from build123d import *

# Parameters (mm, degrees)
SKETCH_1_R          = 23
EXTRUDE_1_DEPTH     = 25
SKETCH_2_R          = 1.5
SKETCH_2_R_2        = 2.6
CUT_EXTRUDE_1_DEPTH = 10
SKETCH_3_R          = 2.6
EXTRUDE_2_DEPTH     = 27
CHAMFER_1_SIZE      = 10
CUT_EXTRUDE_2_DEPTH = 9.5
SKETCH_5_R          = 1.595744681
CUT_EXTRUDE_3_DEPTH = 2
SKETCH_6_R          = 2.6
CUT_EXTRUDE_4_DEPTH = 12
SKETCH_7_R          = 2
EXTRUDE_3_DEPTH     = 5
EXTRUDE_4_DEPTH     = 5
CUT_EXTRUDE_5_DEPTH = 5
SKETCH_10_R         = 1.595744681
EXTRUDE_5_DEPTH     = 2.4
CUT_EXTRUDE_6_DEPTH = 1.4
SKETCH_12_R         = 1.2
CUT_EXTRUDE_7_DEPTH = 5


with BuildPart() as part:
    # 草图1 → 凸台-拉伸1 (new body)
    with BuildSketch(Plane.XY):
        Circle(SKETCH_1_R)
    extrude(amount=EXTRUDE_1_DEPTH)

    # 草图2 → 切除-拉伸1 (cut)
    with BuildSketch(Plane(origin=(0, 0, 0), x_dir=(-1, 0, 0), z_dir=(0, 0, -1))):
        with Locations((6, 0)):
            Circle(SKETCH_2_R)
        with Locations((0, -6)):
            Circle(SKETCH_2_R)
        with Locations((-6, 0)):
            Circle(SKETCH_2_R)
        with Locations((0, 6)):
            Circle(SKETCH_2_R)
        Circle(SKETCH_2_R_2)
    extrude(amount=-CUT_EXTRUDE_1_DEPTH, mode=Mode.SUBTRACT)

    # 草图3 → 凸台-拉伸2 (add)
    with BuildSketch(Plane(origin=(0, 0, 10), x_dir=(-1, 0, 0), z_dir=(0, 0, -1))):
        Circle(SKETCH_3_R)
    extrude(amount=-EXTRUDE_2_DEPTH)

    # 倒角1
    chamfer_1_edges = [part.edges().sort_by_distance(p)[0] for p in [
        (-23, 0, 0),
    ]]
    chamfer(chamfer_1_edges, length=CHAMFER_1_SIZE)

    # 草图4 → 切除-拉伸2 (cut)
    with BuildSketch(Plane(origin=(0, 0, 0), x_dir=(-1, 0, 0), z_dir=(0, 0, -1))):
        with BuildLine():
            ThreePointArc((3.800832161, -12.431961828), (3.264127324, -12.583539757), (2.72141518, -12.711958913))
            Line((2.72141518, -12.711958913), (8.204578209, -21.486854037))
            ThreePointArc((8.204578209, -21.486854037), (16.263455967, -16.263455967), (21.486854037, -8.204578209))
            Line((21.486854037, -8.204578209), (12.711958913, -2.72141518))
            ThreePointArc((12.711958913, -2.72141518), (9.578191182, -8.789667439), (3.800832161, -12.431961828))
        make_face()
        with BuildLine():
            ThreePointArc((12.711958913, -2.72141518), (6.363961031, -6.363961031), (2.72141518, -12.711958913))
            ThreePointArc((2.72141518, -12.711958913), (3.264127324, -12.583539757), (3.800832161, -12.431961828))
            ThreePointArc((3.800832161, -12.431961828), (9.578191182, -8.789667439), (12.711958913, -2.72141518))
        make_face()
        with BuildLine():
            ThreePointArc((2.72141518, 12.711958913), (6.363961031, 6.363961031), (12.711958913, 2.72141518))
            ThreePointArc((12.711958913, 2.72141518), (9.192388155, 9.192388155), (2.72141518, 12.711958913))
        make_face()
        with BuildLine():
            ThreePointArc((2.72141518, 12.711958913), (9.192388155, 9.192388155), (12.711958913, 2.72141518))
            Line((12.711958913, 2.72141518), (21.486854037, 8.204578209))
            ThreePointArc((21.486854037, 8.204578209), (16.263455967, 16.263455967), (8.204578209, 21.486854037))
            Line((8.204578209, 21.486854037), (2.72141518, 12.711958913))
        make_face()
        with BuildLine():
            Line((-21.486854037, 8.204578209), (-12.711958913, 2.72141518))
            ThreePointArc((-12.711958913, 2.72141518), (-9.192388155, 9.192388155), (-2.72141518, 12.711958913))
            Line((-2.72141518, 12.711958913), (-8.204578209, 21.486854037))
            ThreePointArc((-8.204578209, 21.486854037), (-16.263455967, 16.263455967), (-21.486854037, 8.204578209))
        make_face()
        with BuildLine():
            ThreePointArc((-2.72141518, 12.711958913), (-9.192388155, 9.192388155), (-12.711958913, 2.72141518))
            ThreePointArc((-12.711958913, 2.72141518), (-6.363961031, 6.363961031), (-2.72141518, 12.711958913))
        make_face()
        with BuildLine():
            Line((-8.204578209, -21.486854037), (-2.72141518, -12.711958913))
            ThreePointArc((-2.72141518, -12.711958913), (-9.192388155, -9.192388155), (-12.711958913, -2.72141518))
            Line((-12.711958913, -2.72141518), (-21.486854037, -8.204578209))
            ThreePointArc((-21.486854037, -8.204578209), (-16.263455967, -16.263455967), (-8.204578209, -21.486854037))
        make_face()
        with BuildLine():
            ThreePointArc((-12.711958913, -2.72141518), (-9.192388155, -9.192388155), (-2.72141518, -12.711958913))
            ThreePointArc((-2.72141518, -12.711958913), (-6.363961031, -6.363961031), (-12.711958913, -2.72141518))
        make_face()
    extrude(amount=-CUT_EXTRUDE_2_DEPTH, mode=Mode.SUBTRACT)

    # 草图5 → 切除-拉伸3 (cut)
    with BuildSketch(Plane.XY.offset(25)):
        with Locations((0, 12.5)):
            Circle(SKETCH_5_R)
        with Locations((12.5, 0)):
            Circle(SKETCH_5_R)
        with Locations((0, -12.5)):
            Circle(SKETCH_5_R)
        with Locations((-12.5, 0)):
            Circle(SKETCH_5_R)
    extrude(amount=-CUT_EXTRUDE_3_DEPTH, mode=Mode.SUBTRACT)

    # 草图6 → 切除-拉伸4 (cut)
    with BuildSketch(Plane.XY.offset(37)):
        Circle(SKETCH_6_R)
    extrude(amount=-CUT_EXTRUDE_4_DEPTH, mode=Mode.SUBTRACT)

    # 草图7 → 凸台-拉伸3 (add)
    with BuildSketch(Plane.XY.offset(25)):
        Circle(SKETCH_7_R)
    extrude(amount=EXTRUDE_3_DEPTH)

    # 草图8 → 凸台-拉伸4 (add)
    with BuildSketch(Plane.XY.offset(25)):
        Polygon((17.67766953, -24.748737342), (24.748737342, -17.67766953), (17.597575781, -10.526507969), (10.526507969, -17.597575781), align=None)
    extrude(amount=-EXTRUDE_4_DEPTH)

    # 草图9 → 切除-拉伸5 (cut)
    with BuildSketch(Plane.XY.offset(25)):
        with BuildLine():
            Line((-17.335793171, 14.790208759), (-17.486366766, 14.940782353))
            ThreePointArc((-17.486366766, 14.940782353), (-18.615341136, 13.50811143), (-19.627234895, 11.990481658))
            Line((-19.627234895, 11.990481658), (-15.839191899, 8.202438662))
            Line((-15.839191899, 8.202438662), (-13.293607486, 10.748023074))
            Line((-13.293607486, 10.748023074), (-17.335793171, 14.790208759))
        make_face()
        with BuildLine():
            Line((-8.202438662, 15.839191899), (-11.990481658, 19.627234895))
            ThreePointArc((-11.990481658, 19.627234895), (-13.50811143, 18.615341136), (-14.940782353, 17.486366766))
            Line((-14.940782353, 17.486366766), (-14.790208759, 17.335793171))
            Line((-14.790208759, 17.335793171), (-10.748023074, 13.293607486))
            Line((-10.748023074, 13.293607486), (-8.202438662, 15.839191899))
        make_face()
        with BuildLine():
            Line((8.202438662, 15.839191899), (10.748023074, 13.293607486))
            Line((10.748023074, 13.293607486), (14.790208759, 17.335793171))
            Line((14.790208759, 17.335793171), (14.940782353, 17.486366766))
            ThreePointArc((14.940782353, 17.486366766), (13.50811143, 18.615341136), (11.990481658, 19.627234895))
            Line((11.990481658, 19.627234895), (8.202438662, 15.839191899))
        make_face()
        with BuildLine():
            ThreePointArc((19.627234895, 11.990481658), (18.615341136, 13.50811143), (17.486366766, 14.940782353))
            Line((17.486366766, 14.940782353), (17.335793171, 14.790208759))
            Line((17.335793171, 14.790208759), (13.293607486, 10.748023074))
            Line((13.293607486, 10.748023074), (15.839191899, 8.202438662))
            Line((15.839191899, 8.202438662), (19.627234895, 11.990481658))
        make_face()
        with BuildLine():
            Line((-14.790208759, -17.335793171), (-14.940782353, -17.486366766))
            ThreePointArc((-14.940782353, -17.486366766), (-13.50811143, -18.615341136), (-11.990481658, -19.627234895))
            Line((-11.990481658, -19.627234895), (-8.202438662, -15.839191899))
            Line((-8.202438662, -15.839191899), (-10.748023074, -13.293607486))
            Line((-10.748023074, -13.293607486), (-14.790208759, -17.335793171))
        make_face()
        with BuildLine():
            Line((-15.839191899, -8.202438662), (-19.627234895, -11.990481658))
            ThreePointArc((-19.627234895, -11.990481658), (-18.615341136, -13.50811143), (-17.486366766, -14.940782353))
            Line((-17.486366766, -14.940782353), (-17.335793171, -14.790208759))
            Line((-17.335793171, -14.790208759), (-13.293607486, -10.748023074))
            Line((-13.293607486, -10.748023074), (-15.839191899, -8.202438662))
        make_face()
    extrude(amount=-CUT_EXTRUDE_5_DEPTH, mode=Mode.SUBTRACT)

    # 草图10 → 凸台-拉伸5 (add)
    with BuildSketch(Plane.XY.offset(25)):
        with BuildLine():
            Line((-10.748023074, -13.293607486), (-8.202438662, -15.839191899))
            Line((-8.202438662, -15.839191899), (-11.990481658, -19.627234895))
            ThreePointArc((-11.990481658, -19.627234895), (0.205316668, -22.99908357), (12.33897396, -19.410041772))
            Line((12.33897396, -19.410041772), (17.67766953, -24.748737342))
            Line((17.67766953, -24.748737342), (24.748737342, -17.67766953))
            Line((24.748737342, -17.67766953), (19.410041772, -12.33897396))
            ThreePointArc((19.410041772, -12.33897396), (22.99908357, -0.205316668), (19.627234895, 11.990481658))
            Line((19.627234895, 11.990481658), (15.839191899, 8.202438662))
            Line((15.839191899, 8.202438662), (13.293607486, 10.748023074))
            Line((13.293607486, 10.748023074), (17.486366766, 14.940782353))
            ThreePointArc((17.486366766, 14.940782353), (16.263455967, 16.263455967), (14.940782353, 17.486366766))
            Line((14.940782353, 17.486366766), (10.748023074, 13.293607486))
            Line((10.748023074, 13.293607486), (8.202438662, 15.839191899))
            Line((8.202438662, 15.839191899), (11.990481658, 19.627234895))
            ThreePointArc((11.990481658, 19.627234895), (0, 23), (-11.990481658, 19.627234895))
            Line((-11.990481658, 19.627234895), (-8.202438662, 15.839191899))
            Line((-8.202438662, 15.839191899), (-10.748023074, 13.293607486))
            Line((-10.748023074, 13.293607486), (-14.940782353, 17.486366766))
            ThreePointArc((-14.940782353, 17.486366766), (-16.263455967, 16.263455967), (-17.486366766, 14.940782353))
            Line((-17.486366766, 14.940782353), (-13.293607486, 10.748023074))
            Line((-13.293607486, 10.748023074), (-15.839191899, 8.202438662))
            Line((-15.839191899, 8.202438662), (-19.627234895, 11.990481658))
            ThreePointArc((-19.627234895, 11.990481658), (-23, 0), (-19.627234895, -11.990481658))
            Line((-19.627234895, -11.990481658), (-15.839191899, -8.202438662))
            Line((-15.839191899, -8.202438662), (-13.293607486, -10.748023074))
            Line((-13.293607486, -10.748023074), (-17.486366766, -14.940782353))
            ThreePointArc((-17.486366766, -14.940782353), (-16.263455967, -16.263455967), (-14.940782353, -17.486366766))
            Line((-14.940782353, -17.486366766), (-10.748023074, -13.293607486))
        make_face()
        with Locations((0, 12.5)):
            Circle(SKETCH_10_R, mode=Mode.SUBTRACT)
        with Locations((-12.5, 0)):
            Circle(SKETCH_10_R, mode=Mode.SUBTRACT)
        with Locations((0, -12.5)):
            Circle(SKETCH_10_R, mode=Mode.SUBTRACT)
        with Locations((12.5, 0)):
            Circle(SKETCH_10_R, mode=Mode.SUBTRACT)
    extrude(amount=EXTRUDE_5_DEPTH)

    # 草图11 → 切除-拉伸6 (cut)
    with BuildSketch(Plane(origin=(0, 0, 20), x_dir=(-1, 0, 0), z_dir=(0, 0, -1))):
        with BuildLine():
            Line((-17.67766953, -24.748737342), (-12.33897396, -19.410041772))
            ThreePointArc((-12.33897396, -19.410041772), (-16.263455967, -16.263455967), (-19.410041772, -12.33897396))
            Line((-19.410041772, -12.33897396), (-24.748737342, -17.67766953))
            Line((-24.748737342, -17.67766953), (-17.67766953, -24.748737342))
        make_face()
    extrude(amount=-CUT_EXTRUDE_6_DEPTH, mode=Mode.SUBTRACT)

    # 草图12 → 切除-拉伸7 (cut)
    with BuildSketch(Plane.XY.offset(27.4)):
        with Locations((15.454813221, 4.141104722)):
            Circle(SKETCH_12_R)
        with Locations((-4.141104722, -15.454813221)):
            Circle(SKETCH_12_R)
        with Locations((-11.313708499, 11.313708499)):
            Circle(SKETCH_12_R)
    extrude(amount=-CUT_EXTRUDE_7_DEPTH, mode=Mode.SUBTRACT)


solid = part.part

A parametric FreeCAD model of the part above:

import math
import FreeCAD as App
import Part
import Sketcher
from FreeCAD import Vector
Q = App.Units.Quantity


def edges_at(feature, points):
    """Names of the edges that pass closest to the given points."""
    edges = feature.Shape.Edges
    near = lambda p: min(range(len(edges)), key=lambda i: edges[i].distToShape(Part.Vertex(*p))[0])
    return sorted({f"Edge{near(p) + 1}" for p in points})


def add_polygon(sketch, points):
    """Adds a closed chain of lines whose ends are joined by coincident constraints."""
    first, n = sketch.GeometryCount, len(points)
    for a, b in zip(points, points[1:] + points[:1]):
        sketch.addGeometry(Part.LineSegment(App.Vector(*a, 0), App.Vector(*b, 0)), False)
    for i in range(n):
        sketch.addConstraint(Sketcher.Constraint("Coincident", first + i, 2, first + (i + 1) % n, 1))

doc = App.newDocument("Part")
params = doc.addObject("Spreadsheet::Sheet", "Params")
for row, (alias, value) in enumerate([
    ("sketch1_diameter", "46 mm"),
    ("pad1_length", "25 mm"),
    ("sketch2_diameter", "3 mm"),
    ("sketch2_diameter2", "5.2 mm"),
    ("pocket1_length", "10 mm"),
    ("sketch3_diameter", "5.2 mm"),
    ("pad2_length", "27 mm"),
    ("chamfer_size", "10 mm"),
    ("sketch4_radius", "23 mm"),
    ("sketch4_radius2", "14 mm"),
    ("pocket2_length", "9.5 mm"),
    ("pocket3_length", "2 mm"),
    ("sketch6_diameter", "5.2 mm"),
    ("pocket4_length", "12 mm"),
    ("sketch7_diameter", "4 mm"),
    ("pad3_length", "5 mm"),
    ("sketch8_length", "10 mm"),
    ("pad4_length", "5 mm"),
    ("sketch9_radius", "23 mm"),
    ("sketch9_length", "3.6 mm"),
    ("pocket5_length", "5 mm"),
    ("sketch10_radius", "23 mm"),
    ("sketch10_length", "10 mm"),
    ("sketch10_length2", "3.6 mm"),
    ("pad5_length", "2.4 mm"),
    ("sketch11_radius", "23 mm"),
    ("sketch11_length", "10 mm"),
    ("pocket6_length", "1.4 mm"),
    ("sketch12_diameter", "2.4 mm"),
    ("pocket7_length", "5 mm"),
], start=1):
    params.set(f"A{row}", alias)
    params.set(f"B{row}", "=" + value)
    params.setAlias(f"B{row}", alias)

body = doc.addObject("PartDesign::Body", "Body")

sketch1 = body.newObject("Sketcher::SketchObject", "Sketch")
sketch1.AttachmentSupport = (doc.getObject("XY_Plane"), [""])
sketch1.MapMode = "FlatFace"
sketch1.addGeometry(Part.Circle(Vector(0, 0, 0), Vector(0, 0, 1), 23), False)
sketch1.addConstraint([
    Sketcher.Constraint("Coincident", 0, 3, -1, 1),
    Sketcher.Constraint("Diameter", 0, 46.0),
])
sketch1.setExpression("Constraints[1]", "Params.sketch1_diameter")
pad1 = body.newObject("PartDesign::Pad", "Pad")
pad1.Profile = sketch1
pad1.setExpression("Length", "Params.pad1_length")

sketch2 = body.newObject("Sketcher::SketchObject", "Sketch001")
sketch2.AttachmentSupport = (doc.getObject("XY_Plane"), [""])
sketch2.MapMode = "FlatFace"
sketch2.addGeometry([
    Part.Circle(Vector(-6, 0, 0), Vector(0, 0, 1), 1.5),
    Part.Circle(Vector(0, -6, 0), Vector(0, 0, 1), 1.5),
    Part.Circle(Vector(6, 0, 0), Vector(0, 0, 1), 1.5),
    Part.Circle(Vector(0, 6, 0), Vector(0, 0, 1), 1.5),
    Part.Circle(Vector(0, 0, 0), Vector(0, 0, 1), 2.6),
], False)
sketch2.addConstraint([
    Sketcher.Constraint("Coincident", 4, 3, -1, 1),
    Sketcher.Constraint("Equal", 0, 1),
    Sketcher.Constraint("Equal", 1, 2),
    Sketcher.Constraint("Equal", 2, 3),
    Sketcher.Constraint("Symmetric", 0, 3, 2, 3, -1, 1),
    Sketcher.Constraint("Symmetric", 1, 3, 3, 3, -1, 1),
    Sketcher.Constraint("PointOnObject", 0, 3, -1),
    Sketcher.Constraint("PointOnObject", 1, 3, -2),
    Sketcher.Constraint("Diameter", 0, 3.0),
    Sketcher.Constraint("Diameter", 4, 5.2),
    Sketcher.Constraint("DistanceX", 0, 3, -1, 1, 6.0),
    Sketcher.Constraint("DistanceY", 1, 3, -1, 1, 6.0),
])
sketch2.setExpression("Constraints[8]", "Params.sketch2_diameter")
sketch2.setExpression("Constraints[9]", "Params.sketch2_diameter2")
pocket1 = body.newObject("PartDesign::Pocket", "Pocket")
pocket1.Profile = sketch2
pocket1.setExpression("Length", "Params.pocket1_length")
pocket1.Reversed = True

sketch3 = body.newObject("Sketcher::SketchObject", "Sketch002")
sketch3.AttachmentSupport = (doc.getObject("XY_Plane"), [""])
sketch3.MapMode = "FlatFace"
sketch3.AttachmentOffset = App.Placement(Vector(0, 0, 10), App.Rotation())
sketch3.addGeometry(Part.Circle(Vector(0, 0, 0), Vector(0, 0, 1), 2.6), False)
sketch3.addConstraint([
    Sketcher.Constraint("Coincident", 0, 3, -1, 1),
    Sketcher.Constraint("Diameter", 0, 5.2),
])
sketch3.setExpression("Constraints[1]", "Params.sketch3_diameter")
pad2 = body.newObject("PartDesign::Pad", "Pad001")
pad2.Profile = sketch3
pad2.setExpression("Length", "Params.pad2_length")
doc.recompute()

chamfer = body.newObject("PartDesign::Chamfer", "Chamfer")
chamfer.Base = (pad2, edges_at(pad2, [(-23, 0, 0)]))
chamfer.setExpression("Size", "Params.chamfer_size")

sketch4 = body.newObject("Sketcher::SketchObject", "Sketch003")
sketch4.AttachmentSupport = (doc.getObject("XY_Plane"), [""])
sketch4.MapMode = "FlatFace"
sketch4.addGeometry([
    Part.LineSegment(Vector(-3, -13, 0), Vector(-8, -21, 0)),
    Part.ArcOfCircle(Part.Circle(Vector(0, 0, 0), Vector(0, 0, 1), 23), math.radians(-159), math.radians(-111)),
    Part.LineSegment(Vector(-21, -8, 0), Vector(-13, -3, 0)),
    Part.ArcOfCircle(Part.Circle(Vector(-16, -16, 0), Vector(0, 0, 1), 14), math.radians(15), math.radians(75)),
    Part.ArcOfCircle(Part.Circle(Vector(-16, 16, 0), Vector(0, 0, 1), 14), math.radians(-75), math.radians(-15)),
    Part.LineSegment(Vector(-13, 3, 0), Vector(-21, 8, 0)),
    Part.ArcOfCircle(Part.Circle(Vector(0, 0, 0), Vector(0, 0, 1), 23), math.radians(111), math.radians(159)),
    Part.LineSegment(Vector(-8, 21, 0), Vector(-3, 13, 0)),
    Part.LineSegment(Vector(21, 8, 0), Vector(13, 3, 0)),
    Part.ArcOfCircle(Part.Circle(Vector(16, 16, 0), Vector(0, 0, 1), 14), math.radians(-165), math.radians(-105)),
    Part.LineSegment(Vector(3, 13, 0), Vector(8, 21, 0)),
    Part.ArcOfCircle(Part.Circle(Vector(0, 0, 0), Vector(0, 0, 1), 23), math.radians(21), math.radians(69)),
    Part.LineSegment(Vector(8, -21, 0), Vector(3, -13, 0)),
    Part.ArcOfCircle(Part.Circle(Vector(16, -16, 0), Vector(0, 0, 1), 14), math.radians(105), math.radians(165)),
    Part.LineSegment(Vector(13, -3, 0), Vector(21, -8, 0)),
    Part.ArcOfCircle(Part.Circle(Vector(0, 0, 0), Vector(0, 0, 1), 23), math.radians(-69), math.radians(-21)),
], False)
sketch4.addConstraint([
    Sketcher.Constraint("Coincident", 0, 2, 1, 2),
    Sketcher.Constraint("Coincident", 1, 1, 2, 1),
    Sketcher.Constraint("Coincident", 2, 2, 3, 2),
    Sketcher.Constraint("Coincident", 3, 1, 0, 1),
    Sketcher.Constraint("Coincident", 4, 1, 5, 1),
    Sketcher.Constraint("Coincident", 5, 2, 6, 2),
    Sketcher.Constraint("Coincident", 6, 1, 7, 1),
    Sketcher.Constraint("Coincident", 7, 2, 4, 2),
    Sketcher.Constraint("Coincident", 8, 2, 9, 2),
    Sketcher.Constraint("Coincident", 9, 1, 10, 1),
    Sketcher.Constraint("Coincident", 10, 2, 11, 2),
    Sketcher.Constraint("Coincident", 11, 1, 8, 1),
    Sketcher.Constraint("Coincident", 12, 2, 13, 2),
    Sketcher.Constraint("Coincident", 13, 1, 14, 1),
    Sketcher.Constraint("Coincident", 14, 2, 15, 2),
    Sketcher.Constraint("Coincident", 15, 1, 12, 1),
    Sketcher.Constraint("Coincident", 1, 3, -1, 1),
    Sketcher.Constraint("Coincident", 6, 3, -1, 1),
    Sketcher.Constraint("Coincident", 11, 3, -1, 1),
    Sketcher.Constraint("Coincident", 15, 3, -1, 1),
    Sketcher.Constraint("Equal", 3, 4),
    Sketcher.Constraint("Equal", 1, 6),
    Sketcher.Constraint("Equal", 4, 9),
    Sketcher.Constraint("Equal", 6, 11),
    Sketcher.Constraint("Equal", 9, 13),
    Sketcher.Constraint("Equal", 11, 15),
    Sketcher.Constraint("Symmetric", 3, 3, 9, 3, -1, 1),
    Sketcher.Constraint("Symmetric", 4, 3, 13, 3, -1, 1),
    Sketcher.Constraint("Symmetric", 4, 3, 9, 3, -2),
    Sketcher.Constraint("Perpendicular", 0, 5),
    Sketcher.Constraint("Perpendicular", 2, 7),
    Sketcher.Constraint("Perpendicular", 7, 8),
    Sketcher.Constraint("Perpendicular", 5, 10),
    Sketcher.Constraint("Perpendicular", 8, 12),
    Sketcher.Constraint("Perpendicular", 10, 14),
    Sketcher.Constraint("Horizontal", 4, 1, 8, 2),
    Sketcher.Constraint("Horizontal", 7, 2, 9, 1),
    Sketcher.Constraint("Horizontal", 6, 1, 10, 2),
    Sketcher.Constraint("Horizontal", 3, 1, 12, 2),
    Sketcher.Constraint("Horizontal", 2, 2, 13, 1),
    Sketcher.Constraint("Vertical", 2, 2, 4, 1),
    Sketcher.Constraint("Vertical", 0, 2, 6, 1),
    Sketcher.Constraint("Equal", 0, 2),
    Sketcher.Constraint("Radius", 1, 23.0),
    Sketcher.Constraint("Radius", 3, 14.0),
    Sketcher.Constraint("Angle", 0, Q("-122 deg")),
    Sketcher.Constraint("DistanceY", 0, 2, 3, 3, 5.223398),
    Sketcher.Constraint("DistanceX", 1, 1, 3, 3, 5.223398),
    Sketcher.Constraint("DistanceX", 0, 2, -1, 1, 8.204578),
])
sketch4.setExpression("Constraints[43]", "Params.sketch4_radius")
sketch4.setExpression("Constraints[44]", "Params.sketch4_radius2")
pocket2 = body.newObject("PartDesign::Pocket", "Pocket001")
pocket2.Profile = sketch4
pocket2.setExpression("Length", "Params.pocket2_length")
pocket2.Reversed = True

sketch5 = body.newObject("Sketcher::SketchObject", "Sketch004")
sketch5.AttachmentSupport = (doc.getObject("XY_Plane"), [""])
sketch5.MapMode = "FlatFace"
sketch5.AttachmentOffset = App.Placement(Vector(0, 0, 25), App.Rotation())
sketch5.addGeometry([
    Part.Circle(Vector(0, 12.5, 0), Vector(0, 0, 1), 1.6),
    Part.Circle(Vector(12.5, 0, 0), Vector(0, 0, 1), 1.6),
    Part.Circle(Vector(0, -12.5, 0), Vector(0, 0, 1), 1.6),
    Part.Circle(Vector(-12.5, 0, 0), Vector(0, 0, 1), 1.6),
], False)
sketch5.addConstraint([
    Sketcher.Constraint("Equal", 0, 1),
    Sketcher.Constraint("Equal", 1, 2),
    Sketcher.Constraint("Equal", 2, 3),
    Sketcher.Constraint("Symmetric", 0, 3, 2, 3, -1, 1),
    Sketcher.Constraint("Symmetric", 1, 3, 3, 3, -1, 1),
    Sketcher.Constraint("PointOnObject", 0, 3, -2),
    Sketcher.Constraint("PointOnObject", 1, 3, -1),
    Sketcher.Constraint("DistanceY", 2, 3, 0, 3, 25.0),
    Sketcher.Constraint("DistanceX", 3, 3, 1, 3, 25.0),
    Sketcher.Constraint("Diameter", 0, 3.191489),
])
pocket3 = body.newObject("PartDesign::Pocket", "Pocket002")
pocket3.Profile = sketch5
pocket3.setExpression("Length", "Params.pocket3_length")

sketch6 = body.newObject("Sketcher::SketchObject", "Sketch005")
sketch6.AttachmentSupport = (doc.getObject("XY_Plane"), [""])
sketch6.MapMode = "FlatFace"
sketch6.AttachmentOffset = App.Placement(Vector(0, 0, 37), App.Rotation())
sketch6.addGeometry(Part.Circle(Vector(0, 0, 0), Vector(0, 0, 1), 2.6), False)
sketch6.addConstraint([
    Sketcher.Constraint("Coincident", 0, 3, -1, 1),
    Sketcher.Constraint("Diameter", 0, 5.2),
])
sketch6.setExpression("Constraints[1]", "Params.sketch6_diameter")
pocket4 = body.newObject("PartDesign::Pocket", "Pocket003")
pocket4.Profile = sketch6
pocket4.setExpression("Length", "Params.pocket4_length")

sketch7 = body.newObject("Sketcher::SketchObject", "Sketch006")
sketch7.AttachmentSupport = (doc.getObject("XY_Plane"), [""])
sketch7.MapMode = "FlatFace"
sketch7.AttachmentOffset = App.Placement(Vector(0, 0, 25), App.Rotation())
sketch7.addGeometry(Part.Circle(Vector(0, 0, 0), Vector(0, 0, 1), 2), False)
sketch7.addConstraint([
    Sketcher.Constraint("Coincident", 0, 3, -1, 1),
    Sketcher.Constraint("Diameter", 0, 4.0),
])
sketch7.setExpression("Constraints[1]", "Params.sketch7_diameter")
pad3 = body.newObject("PartDesign::Pad", "Pad002")
pad3.Profile = sketch7
pad3.setExpression("Length", "Params.pad3_length")

sketch8 = body.newObject("Sketcher::SketchObject", "Sketch007")
sketch8.AttachmentSupport = (doc.getObject("XY_Plane"), [""])
sketch8.MapMode = "FlatFace"
sketch8.AttachmentOffset = App.Placement(Vector(0, 0, 25), App.Rotation())
add_polygon(sketch8, [(18, -25), (25, -18), (18, -11), (11, -18)])
sketch8.addConstraint([
    Sketcher.Constraint("Perpendicular", 0, 1),
    Sketcher.Constraint("Perpendicular", 1, 2),
    Sketcher.Constraint("Perpendicular", 2, 3),
    Sketcher.Constraint("Angle", 0, Q("45 deg")),
    Sketcher.Constraint("Distance", 0, 10.0),
    Sketcher.Constraint("Distance", 1, 10.11327),
    Sketcher.Constraint("DistanceY", 0, 2, -1, 1, 17.67767),
    Sketcher.Constraint("DistanceX", -1, 1, 3, 2, 17.67767),
])
sketch8.setExpression("Constraints[8]", "Params.sketch8_length")
pad4 = body.newObject("PartDesign::Pad", "Pad003")
pad4.Profile = sketch8
pad4.setExpression("Length", "Params.pad4_length")
pad4.Reversed = True

sketch9 = body.newObject("Sketcher::SketchObject", "Sketch008")
sketch9.AttachmentSupport = (doc.getObject("XY_Plane"), [""])
sketch9.MapMode = "FlatFace"
sketch9.AttachmentOffset = App.Placement(Vector(0, 0, 25), App.Rotation())
sketch9.addGeometry([
    Part.LineSegment(Vector(-17.34, 14.79, 0), Vector(-17.49, 14.94, 0)),
    Part.ArcOfCircle(Part.Circle(Vector(0, 0, 0), Vector(0, 0, 1), 23), math.radians(139.49), math.radians(148.58)),
    Part.LineSegment(Vector(-19.63, 11.99, 0), Vector(-15.84, 8.2, 0)),
    Part.LineSegment(Vector(-15.84, 8.2, 0), Vector(-13.29, 10.75, 0)),
    Part.LineSegment(Vector(-13.29, 10.75, 0), Vector(-17.34, 14.79, 0)),
    Part.LineSegment(Vector(-8.2, 15.84, 0), Vector(-11.99, 19.63, 0)),
    Part.ArcOfCircle(Part.Circle(Vector(0, 0, 0), Vector(0, 0, 1), 23), math.radians(121.42), math.radians(130.51)),
    Part.LineSegment(Vector(-14.94, 17.49, 0), Vector(-14.79, 17.34, 0)),
    Part.LineSegment(Vector(-14.79, 17.34, 0), Vector(-10.75, 13.29, 0)),
    Part.LineSegment(Vector(-10.75, 13.29, 0), Vector(-8.2, 15.84, 0)),
    Part.LineSegment(Vector(8.2, 15.84, 0), Vector(10.75, 13.29, 0)),
    Part.LineSegment(Vector(10.75, 13.29, 0), Vector(14.79, 17.34, 0)),
    Part.LineSegment(Vector(14.79, 17.34, 0), Vector(14.94, 17.49, 0)),
    Part.ArcOfCircle(Part.Circle(Vector(0, 0, 0), Vector(0, 0, 1), 23), math.radians(49.49), math.radians(58.58)),
    Part.LineSegment(Vector(11.99, 19.63, 0), Vector(8.2, 15.84, 0)),
    Part.ArcOfCircle(Part.Circle(Vector(0, 0, 0), Vector(0, 0, 1), 23), math.radians(31.42), math.radians(40.51)),
    Part.LineSegment(Vector(17.49, 14.94, 0), Vector(17.34, 14.79, 0)),
    Part.LineSegment(Vector(17.34, 14.79, 0), Vector(13.29, 10.75, 0)),
    Part.LineSegment(Vector(13.29, 10.75, 0), Vector(15.84, 8.2, 0)),
    Part.LineSegment(Vector(15.84, 8.2, 0), Vector(19.63, 11.99, 0)),
    Part.LineSegment(Vector(-14.79, -17.34, 0), Vector(-14.94, -17.49, 0)),
    Part.ArcOfCircle(Part.Circle(Vector(0, 0, 0), Vector(0, 0, 1), 23), math.radians(-130.51), math.radians(-121.42)),
    Part.LineSegment(Vector(-11.99, -19.63, 0), Vector(-8.2, -15.84, 0)),
    Part.LineSegment(Vector(-8.2, -15.84, 0), Vector(-10.75, -13.29, 0)),
    Part.LineSegment(Vector(-10.75, -13.29, 0), Vector(-14.79, -17.34, 0)),
    Part.LineSegment(Vector(-15.84, -8.2, 0), Vector(-19.63, -11.99, 0)),
    Part.ArcOfCircle(Part.Circle(Vector(0, 0, 0), Vector(0, 0, 1), 23), math.radians(-148.58), math.radians(-139.49)),
    Part.LineSegment(Vector(-17.49, -14.94, 0), Vector(-17.34, -14.79, 0)),
    Part.LineSegment(Vector(-17.34, -14.79, 0), Vector(-13.29, -10.75, 0)),
    Part.LineSegment(Vector(-13.29, -10.75, 0), Vector(-15.84, -8.2, 0)),
], False)
sketch9.addConstraint([
    Sketcher.Constraint("Coincident", 0, 2, 1, 1),
    Sketcher.Constraint("Coincident", 1, 2, 2, 1),
    Sketcher.Constraint("Coincident", 2, 2, 3, 1),
    Sketcher.Constraint("Coincident", 3, 2, 4, 1),
    Sketcher.Constraint("Coincident", 4, 2, 0, 1),
    Sketcher.Constraint("Coincident", 5, 2, 6, 1),
    Sketcher.Constraint("Coincident", 6, 2, 7, 1),
    Sketcher.Constraint("Coincident", 7, 2, 8, 1),
    Sketcher.Constraint("Coincident", 8, 2, 9, 1),
    Sketcher.Constraint("Coincident", 9, 2, 5, 1),
    Sketcher.Constraint("Coincident", 10, 2, 11, 1),
    Sketcher.Constraint("Coincident", 11, 2, 12, 1),
    Sketcher.Constraint("Coincident", 12, 2, 13, 1),
    Sketcher.Constraint("Coincident", 13, 2, 14, 1),
    Sketcher.Constraint("Coincident", 14, 2, 10, 1),
    Sketcher.Constraint("Coincident", 15, 2, 16, 1),
    Sketcher.Constraint("Coincident", 16, 2, 17, 1),
    Sketcher.Constraint("Coincident", 17, 2, 18, 1),
    Sketcher.Constraint("Coincident", 18, 2, 19, 1),
    Sketcher.Constraint("Coincident", 19, 2, 15, 1),
    Sketcher.Constraint("Coincident", 20, 2, 21, 1),
    Sketcher.Constraint("Coincident", 21, 2, 22, 1),
    Sketcher.Constraint("Coincident", 22, 2, 23, 1),
    Sketcher.Constraint("Coincident", 23, 2, 24, 1),
    Sketcher.Constraint("Coincident", 24, 2, 20, 1),
    Sketcher.Constraint("Coincident", 25, 2, 26, 1),
    Sketcher.Constraint("Coincident", 26, 2, 27, 1),
    Sketcher.Constraint("Coincident", 27, 2, 28, 1),
    Sketcher.Constraint("Coincident", 28, 2, 29, 1),
    Sketcher.Constraint("Coincident", 29, 2, 25, 1),
    Sketcher.Constraint("Coincident", 1, 3, -1, 1),
    Sketcher.Constraint("Coincident", 6, 3, -1, 1),
    Sketcher.Constraint("Coincident", 13, 3, -1, 1),
    Sketcher.Constraint("Coincident", 15, 3, -1, 1),
    Sketcher.Constraint("Coincident", 21, 3, -1, 1),
    Sketcher.Constraint("Coincident", 26, 3, -1, 1),
    Sketcher.Constraint("Equal", 1, 6),
    Sketcher.Constraint("Equal", 6, 13),
    Sketcher.Constraint("Equal", 13, 15),
    Sketcher.Constraint("Equal", 15, 21),
    Sketcher.Constraint("Equal", 21, 26),
    Sketcher.Constraint("Symmetric", 14, 2, 22, 2, -1, 1),
    Sketcher.Constraint("Symmetric", 10, 2, 23, 2, -1, 1),
    Sketcher.Constraint("Symmetric", 11, 2, 24, 2, -1, 1),
    Sketcher.Constraint("Symmetric", 16, 2, 27, 2, -1, 1),
    Sketcher.Constraint("Symmetric", 17, 2, 28, 2, -1, 1),
    Sketcher.Constraint("Symmetric", 18, 2, 29, 2, -1, 1),
    Sketcher.Constraint("Symmetric", 8, 2, 10, 2, -2),
    Sketcher.Constraint("Symmetric", 7, 2, 11, 2, -2),
    Sketcher.Constraint("Symmetric", 9, 2, 14, 2, -2),
    Sketcher.Constraint("Symmetric", 4, 2, 16, 2, -2),
    Sketcher.Constraint("Symmetric", 3, 2, 17, 2, -2),
    Sketcher.Constraint("Symmetric", 2, 2, 18, 2, -2),
    Sketcher.Constraint("Parallel", 0, 2),
    Sketcher.Constraint("Perpendicular", 2, 3),
    Sketcher.Constraint("Perpendicular", 3, 4),
    Sketcher.Constraint("Parallel", 4, 5),
    Sketcher.Constraint("Parallel", 5, 7),
    Sketcher.Constraint("Parallel", 7, 8),
    Sketcher.Constraint("Perpendicular", 8, 9),
    Sketcher.Constraint("Perpendicular", 9, 10),
    Sketcher.Constraint("Parallel", 11, 12),
    Sketcher.Constraint("Parallel", 12, 14),
    Sketcher.Constraint("Parallel", 14, 16),
    Sketcher.Constraint("Perpendicular", 18, 19),
    Sketcher.Constraint("Parallel", 19, 20),
    Sketcher.Constraint("Parallel", 20, 22),
    Sketcher.Constraint("Parallel", 24, 25),
    Sketcher.Constraint("Parallel", 25, 27),
    Sketcher.Constraint("Equal", 2, 5),
    Sketcher.Constraint("Equal", 0, 7),
    Sketcher.Constraint("Equal", 4, 8),
    Sketcher.Constraint("Equal", 3, 9),
    Sketcher.Constraint("Radius", 1, 23.0),
    Sketcher.Constraint("Distance", 3, 3.6),
    Sketcher.Constraint("Distance", 2, 5.357102),
    Sketcher.Constraint("DistanceX", 4, 2, 2, 2, 1.496601),
    Sketcher.Constraint("DistanceX", 7, 2, 3, 2, 1.496601),
])
sketch9.setExpression("Constraints[73]", "Params.sketch9_radius")
sketch9.setExpression("Constraints[74]", "Params.sketch9_length")
pocket5 = body.newObject("PartDesign::Pocket", "Pocket004")
pocket5.Profile = sketch9
pocket5.setExpression("Length", "Params.pocket5_length")

sketch10 = body.newObject("Sketcher::SketchObject", "Sketch009")
sketch10.AttachmentSupport = (doc.getObject("XY_Plane"), [""])
sketch10.MapMode = "FlatFace"
sketch10.AttachmentOffset = App.Placement(Vector(0, 0, 25), App.Rotation())
sketch10.addGeometry([
    Part.LineSegment(Vector(-10.7, -13.3, 0), Vector(-8.2, -15.8, 0)),
    Part.LineSegment(Vector(-8.2, -15.8, 0), Vector(-12, -19.6, 0)),
    Part.ArcOfCircle(Part.Circle(Vector(0, 0, 0), Vector(0, 0, 1), 23), math.radians(-121), math.radians(-58)),
    Part.LineSegment(Vector(12.3, -19.4, 0), Vector(17.7, -24.7, 0)),
    Part.LineSegment(Vector(17.7, -24.7, 0), Vector(24.7, -17.7, 0)),
    Part.LineSegment(Vector(24.7, -17.7, 0), Vector(19.4, -12.3, 0)),
    Part.ArcOfCircle(Part.Circle(Vector(0, 0, 0), Vector(0, 0, 1), 23), math.radians(-32), math.radians(31)),
    Part.LineSegment(Vector(19.6, 12, 0), Vector(15.8, 8.2, 0)),
    Part.LineSegment(Vector(15.8, 8.2, 0), Vector(13.3, 10.7, 0)),
    Part.LineSegment(Vector(13.3, 10.7, 0), Vector(17.5, 14.9, 0)),
    Part.ArcOfCircle(Part.Circle(Vector(0, 0, 0), Vector(0, 0, 1), 23), math.radians(40.51), math.radians(49.49)),
    Part.LineSegment(Vector(14.9, 17.5, 0), Vector(10.7, 13.3, 0)),
    Part.LineSegment(Vector(10.7, 13.3, 0), Vector(8.2, 15.8, 0)),
    Part.LineSegment(Vector(8.2, 15.8, 0), Vector(12, 19.6, 0)),
    Part.ArcOfCircle(Part.Circle(Vector(0, 0, 0), Vector(0, 0, 1), 23), math.radians(59), math.radians(121)),
    Part.LineSegment(Vector(-12, 19.6, 0), Vector(-8.2, 15.8, 0)),
    Part.LineSegment(Vector(-8.2, 15.8, 0), Vector(-10.7, 13.3, 0)),
    Part.LineSegment(Vector(-10.7, 13.3, 0), Vector(-14.9, 17.5, 0)),
    Part.ArcOfCircle(Part.Circle(Vector(0, 0, 0), Vector(0, 0, 1), 23), math.radians(130.51), math.radians(139.49)),
    Part.LineSegment(Vector(-17.5, 14.9, 0), Vector(-13.3, 10.7, 0)),
    Part.LineSegment(Vector(-13.3, 10.7, 0), Vector(-15.8, 8.2, 0)),
    Part.LineSegment(Vector(-15.8, 8.2, 0), Vector(-19.6, 12, 0)),
    Part.ArcOfCircle(Part.Circle(Vector(0, 0, 0), Vector(0, 0, 1), 23), math.radians(149), math.radians(211)),
    Part.LineSegment(Vector(-19.6, -12, 0), Vector(-15.8, -8.2, 0)),
    Part.LineSegment(Vector(-15.8, -8.2, 0), Vector(-13.3, -10.7, 0)),
    Part.LineSegment(Vector(-13.3, -10.7, 0), Vector(-17.5, -14.9, 0)),
    Part.ArcOfCircle(Part.Circle(Vector(0, 0, 0), Vector(0, 0, 1), 23), math.radians(-139.49), math.radians(-130.51)),
    Part.LineSegment(Vector(-14.9, -17.5, 0), Vector(-10.7, -13.3, 0)),
    Part.Circle(Vector(0, -12.5, 0), Vector(0, 0, 1), 1.6),
    Part.Circle(Vector(-12.5, 0, 0), Vector(0, 0, 1), 1.6),
    Part.Circle(Vector(12.5, 0, 0), Vector(0, 0, 1), 1.6),
    Part.Circle(Vector(0, 12.5, 0), Vector(0, 0, 1), 1.6),
], False)
sketch10.addConstraint([
    Sketcher.Constraint("Coincident", 0, 2, 1, 1),
    Sketcher.Constraint("Coincident", 1, 2, 2, 1),
    Sketcher.Constraint("Coincident", 2, 2, 3, 1),
    Sketcher.Constraint("Coincident", 3, 2, 4, 1),
    Sketcher.Constraint("Coincident", 4, 2, 5, 1),
    Sketcher.Constraint("Coincident", 5, 2, 6, 1),
    Sketcher.Constraint("Coincident", 6, 2, 7, 1),
    Sketcher.Constraint("Coincident", 7, 2, 8, 1),
    Sketcher.Constraint("Coincident", 8, 2, 9, 1),
    Sketcher.Constraint("Coincident", 9, 2, 10, 1),
    Sketcher.Constraint("Coincident", 10, 2, 11, 1),
    Sketcher.Constraint("Coincident", 11, 2, 12, 1),
    Sketcher.Constraint("Coincident", 12, 2, 13, 1),
    Sketcher.Constraint("Coincident", 13, 2, 14, 1),
    Sketcher.Constraint("Coincident", 14, 2, 15, 1),
    Sketcher.Constraint("Coincident", 15, 2, 16, 1),
    Sketcher.Constraint("Coincident", 16, 2, 17, 1),
    Sketcher.Constraint("Coincident", 17, 2, 18, 1),
    Sketcher.Constraint("Coincident", 18, 2, 19, 1),
    Sketcher.Constraint("Coincident", 19, 2, 20, 1),
    Sketcher.Constraint("Coincident", 20, 2, 21, 1),
    Sketcher.Constraint("Coincident", 21, 2, 22, 1),
    Sketcher.Constraint("Coincident", 22, 2, 23, 1),
    Sketcher.Constraint("Coincident", 23, 2, 24, 1),
    Sketcher.Constraint("Coincident", 24, 2, 25, 1),
    Sketcher.Constraint("Coincident", 25, 2, 26, 1),
    Sketcher.Constraint("Coincident", 26, 2, 27, 1),
    Sketcher.Constraint("Coincident", 27, 2, 0, 1),
    Sketcher.Constraint("Coincident", 2, 3, -1, 1),
    Sketcher.Constraint("Coincident", 6, 3, -1, 1),
    Sketcher.Constraint("Coincident", 10, 3, -1, 1),
    Sketcher.Constraint("Coincident", 14, 3, -1, 1),
    Sketcher.Constraint("Coincident", 18, 3, -1, 1),
    Sketcher.Constraint("Coincident", 22, 3, -1, 1),
    Sketcher.Constraint("Coincident", 26, 3, -1, 1),
    Sketcher.Constraint("Equal", 2, 6),
    Sketcher.Constraint("Equal", 6, 10),
    Sketcher.Constraint("Equal", 10, 14),
    Sketcher.Constraint("Equal", 14, 18),
    Sketcher.Constraint("Equal", 18, 22),
    Sketcher.Constraint("Equal", 22, 26),
    Sketcher.Constraint("Equal", 28, 29),
    Sketcher.Constraint("Equal", 29, 30),
    Sketcher.Constraint("Equal", 30, 31),
    Sketcher.Constraint("Symmetric", 29, 3, 30, 3, -1, 1),
    Sketcher.Constraint("Symmetric", 28, 3, 31, 3, -1, 1),
    Sketcher.Constraint("Symmetric", 0, 2, 12, 2, -1, 1),
    Sketcher.Constraint("Symmetric", 7, 2, 23, 2, -1, 1),
    Sketcher.Constraint("Symmetric", 8, 2, 24, 2, -1, 1),
    Sketcher.Constraint("Symmetric", 11, 2, 27, 2, -1, 1),
    Sketcher.Constraint("Symmetric", 12, 2, 15, 2, -2),
    Sketcher.Constraint("Symmetric", 11, 2, 16, 2, -2),
    Sketcher.Constraint("Symmetric", 8, 2, 19, 2, -2),
    Sketcher.Constraint("Symmetric", 7, 2, 20, 2, -2),
    Sketcher.Constraint("PointOnObject", 28, 3, -2),
    Sketcher.Constraint("PointOnObject", 29, 3, -1),
    Sketcher.Constraint("Perpendicular", 0, 1),
    Sketcher.Constraint("Perpendicular", 1, 3),
    Sketcher.Constraint("Perpendicular", 3, 4),
    Sketcher.Constraint("Perpendicular", 4, 5),
    Sketcher.Constraint("Perpendicular", 5, 7),
    Sketcher.Constraint("Perpendicular", 7, 8),
    Sketcher.Constraint("Perpendicular", 8, 9),
    Sketcher.Constraint("Parallel", 9, 11),
    Sketcher.Constraint("Perpendicular", 12, 13),
    Sketcher.Constraint("Perpendicular", 13, 15),
    Sketcher.Constraint("Perpendicular", 15, 16),
    Sketcher.Constraint("Perpendicular", 16, 17),
    Sketcher.Constraint("Parallel", 17, 19),
    Sketcher.Constraint("Perpendicular", 20, 21),
    Sketcher.Constraint("Perpendicular", 21, 23),
    Sketcher.Constraint("Perpendicular", 24, 25),
    Sketcher.Constraint("Parallel", 25, 27),
    Sketcher.Constraint("Equal", 3, 5),
    Sketcher.Constraint("Equal", 1, 7),
    Sketcher.Constraint("Equal", 0, 8),
    Sketcher.Constraint("Equal", 9, 11),
    Sketcher.Constraint("Radius", 2, 23.0),
    Sketcher.Constraint("Distance", 4, 10.0),
    Sketcher.Constraint("Distance", 0, 3.6),
    Sketcher.Constraint("DistanceY", 28, 3, -1, 1, 12.5),
    Sketcher.Constraint("DistanceX", 29, 3, -1, 1, 12.5),
    Sketcher.Constraint("Diameter", 28, 3.191489),
    Sketcher.Constraint("Distance", 1, 5.357102),
    Sketcher.Constraint("DistanceX", 0, 2, -1, 1, 8.202439),
    Sketcher.Constraint("DistanceX", -1, 1, 3, 2, 17.67767),
])
sketch10.setExpression("Constraints[77]", "Params.sketch10_radius")
sketch10.setExpression("Constraints[78]", "Params.sketch10_length")
sketch10.setExpression("Constraints[79]", "Params.sketch10_length2")
pad5 = body.newObject("PartDesign::Pad", "Pad004")
pad5.Profile = sketch10
pad5.setExpression("Length", "Params.pad5_length")

sketch11 = body.newObject("Sketcher::SketchObject", "Sketch010")
sketch11.AttachmentSupport = (doc.getObject("XY_Plane"), [""])
sketch11.MapMode = "FlatFace"
sketch11.AttachmentOffset = App.Placement(Vector(0, 0, 20), App.Rotation())
sketch11.addGeometry([
    Part.LineSegment(Vector(18, -25, 0), Vector(12, -19, 0)),
    Part.ArcOfCircle(Part.Circle(Vector(0, 0, 0), Vector(0, 0, 1), 23), math.radians(-58), math.radians(-32)),
    Part.LineSegment(Vector(19, -12, 0), Vector(25, -18, 0)),
    Part.LineSegment(Vector(25, -18, 0), Vector(18, -25, 0)),
], False)
sketch11.addConstraint([
    Sketcher.Constraint("Coincident", 0, 2, 1, 1),
    Sketcher.Constraint("Coincident", 1, 2, 2, 1),
    Sketcher.Constraint("Coincident", 2, 2, 3, 1),
    Sketcher.Constraint("Coincident", 3, 2, 0, 1),
    Sketcher.Constraint("Coincident", 1, 3, -1, 1),
    Sketcher.Constraint("Parallel", 0, 2),
    Sketcher.Constraint("Perpendicular", 2, 3),
    Sketcher.Constraint("Equal", 0, 2),
    Sketcher.Constraint("Radius", 1, 23.0),
    Sketcher.Constraint("Angle", 0, Q("135 deg")),
    Sketcher.Constraint("Distance", 3, 10.0),
    Sketcher.Constraint("DistanceY", 2, 2, -1, 1, 17.67767),
])
sketch11.setExpression("Constraints[8]", "Params.sketch11_radius")
sketch11.setExpression("Constraints[10]", "Params.sketch11_length")
pocket6 = body.newObject("PartDesign::Pocket", "Pocket005")
pocket6.Profile = sketch11
pocket6.setExpression("Length", "Params.pocket6_length")
pocket6.Reversed = True

sketch12 = body.newObject("Sketcher::SketchObject", "Sketch011")
sketch12.AttachmentSupport = (doc.getObject("XY_Plane"), [""])
sketch12.MapMode = "FlatFace"
sketch12.AttachmentOffset = App.Placement(Vector(0, 0, 27.4), App.Rotation())
sketch12.addGeometry([
    Part.Circle(Vector(15.5, 4.1, 0), Vector(0, 0, 1), 1.2),
    Part.Circle(Vector(-4.1, -15.5, 0), Vector(0, 0, 1), 1.2),
    Part.Circle(Vector(-11.3, 11.3, 0), Vector(0, 0, 1), 1.2),
], False)
sketch12.addConstraint([
    Sketcher.Constraint("Equal", 0, 1),
    Sketcher.Constraint("Equal", 1, 2),
    Sketcher.Constraint("Diameter", 0, 2.4),
    Sketcher.Constraint("DistanceX", 2, 3, -1, 1, 11.313708),
    Sketcher.Constraint("DistanceY", -1, 1, 2, 3, 11.313708),
    Sketcher.Constraint("DistanceX", 2, 3, 0, 3, 26.768522),
    Sketcher.Constraint("DistanceY", 1, 3, 2, 3, 26.768522),
    Sketcher.Constraint("DistanceY", -1, 1, 0, 3, 4.141105),
    Sketcher.Constraint("DistanceX", 1, 3, -1, 1, 4.141105),
])
sketch12.setExpression("Constraints[2]", "Params.sketch12_diameter")
pocket7 = body.newObject("PartDesign::Pocket", "Pocket006")
pocket7.Profile = sketch12
pocket7.setExpression("Length", "Params.pocket7_length")

doc.recompute()
